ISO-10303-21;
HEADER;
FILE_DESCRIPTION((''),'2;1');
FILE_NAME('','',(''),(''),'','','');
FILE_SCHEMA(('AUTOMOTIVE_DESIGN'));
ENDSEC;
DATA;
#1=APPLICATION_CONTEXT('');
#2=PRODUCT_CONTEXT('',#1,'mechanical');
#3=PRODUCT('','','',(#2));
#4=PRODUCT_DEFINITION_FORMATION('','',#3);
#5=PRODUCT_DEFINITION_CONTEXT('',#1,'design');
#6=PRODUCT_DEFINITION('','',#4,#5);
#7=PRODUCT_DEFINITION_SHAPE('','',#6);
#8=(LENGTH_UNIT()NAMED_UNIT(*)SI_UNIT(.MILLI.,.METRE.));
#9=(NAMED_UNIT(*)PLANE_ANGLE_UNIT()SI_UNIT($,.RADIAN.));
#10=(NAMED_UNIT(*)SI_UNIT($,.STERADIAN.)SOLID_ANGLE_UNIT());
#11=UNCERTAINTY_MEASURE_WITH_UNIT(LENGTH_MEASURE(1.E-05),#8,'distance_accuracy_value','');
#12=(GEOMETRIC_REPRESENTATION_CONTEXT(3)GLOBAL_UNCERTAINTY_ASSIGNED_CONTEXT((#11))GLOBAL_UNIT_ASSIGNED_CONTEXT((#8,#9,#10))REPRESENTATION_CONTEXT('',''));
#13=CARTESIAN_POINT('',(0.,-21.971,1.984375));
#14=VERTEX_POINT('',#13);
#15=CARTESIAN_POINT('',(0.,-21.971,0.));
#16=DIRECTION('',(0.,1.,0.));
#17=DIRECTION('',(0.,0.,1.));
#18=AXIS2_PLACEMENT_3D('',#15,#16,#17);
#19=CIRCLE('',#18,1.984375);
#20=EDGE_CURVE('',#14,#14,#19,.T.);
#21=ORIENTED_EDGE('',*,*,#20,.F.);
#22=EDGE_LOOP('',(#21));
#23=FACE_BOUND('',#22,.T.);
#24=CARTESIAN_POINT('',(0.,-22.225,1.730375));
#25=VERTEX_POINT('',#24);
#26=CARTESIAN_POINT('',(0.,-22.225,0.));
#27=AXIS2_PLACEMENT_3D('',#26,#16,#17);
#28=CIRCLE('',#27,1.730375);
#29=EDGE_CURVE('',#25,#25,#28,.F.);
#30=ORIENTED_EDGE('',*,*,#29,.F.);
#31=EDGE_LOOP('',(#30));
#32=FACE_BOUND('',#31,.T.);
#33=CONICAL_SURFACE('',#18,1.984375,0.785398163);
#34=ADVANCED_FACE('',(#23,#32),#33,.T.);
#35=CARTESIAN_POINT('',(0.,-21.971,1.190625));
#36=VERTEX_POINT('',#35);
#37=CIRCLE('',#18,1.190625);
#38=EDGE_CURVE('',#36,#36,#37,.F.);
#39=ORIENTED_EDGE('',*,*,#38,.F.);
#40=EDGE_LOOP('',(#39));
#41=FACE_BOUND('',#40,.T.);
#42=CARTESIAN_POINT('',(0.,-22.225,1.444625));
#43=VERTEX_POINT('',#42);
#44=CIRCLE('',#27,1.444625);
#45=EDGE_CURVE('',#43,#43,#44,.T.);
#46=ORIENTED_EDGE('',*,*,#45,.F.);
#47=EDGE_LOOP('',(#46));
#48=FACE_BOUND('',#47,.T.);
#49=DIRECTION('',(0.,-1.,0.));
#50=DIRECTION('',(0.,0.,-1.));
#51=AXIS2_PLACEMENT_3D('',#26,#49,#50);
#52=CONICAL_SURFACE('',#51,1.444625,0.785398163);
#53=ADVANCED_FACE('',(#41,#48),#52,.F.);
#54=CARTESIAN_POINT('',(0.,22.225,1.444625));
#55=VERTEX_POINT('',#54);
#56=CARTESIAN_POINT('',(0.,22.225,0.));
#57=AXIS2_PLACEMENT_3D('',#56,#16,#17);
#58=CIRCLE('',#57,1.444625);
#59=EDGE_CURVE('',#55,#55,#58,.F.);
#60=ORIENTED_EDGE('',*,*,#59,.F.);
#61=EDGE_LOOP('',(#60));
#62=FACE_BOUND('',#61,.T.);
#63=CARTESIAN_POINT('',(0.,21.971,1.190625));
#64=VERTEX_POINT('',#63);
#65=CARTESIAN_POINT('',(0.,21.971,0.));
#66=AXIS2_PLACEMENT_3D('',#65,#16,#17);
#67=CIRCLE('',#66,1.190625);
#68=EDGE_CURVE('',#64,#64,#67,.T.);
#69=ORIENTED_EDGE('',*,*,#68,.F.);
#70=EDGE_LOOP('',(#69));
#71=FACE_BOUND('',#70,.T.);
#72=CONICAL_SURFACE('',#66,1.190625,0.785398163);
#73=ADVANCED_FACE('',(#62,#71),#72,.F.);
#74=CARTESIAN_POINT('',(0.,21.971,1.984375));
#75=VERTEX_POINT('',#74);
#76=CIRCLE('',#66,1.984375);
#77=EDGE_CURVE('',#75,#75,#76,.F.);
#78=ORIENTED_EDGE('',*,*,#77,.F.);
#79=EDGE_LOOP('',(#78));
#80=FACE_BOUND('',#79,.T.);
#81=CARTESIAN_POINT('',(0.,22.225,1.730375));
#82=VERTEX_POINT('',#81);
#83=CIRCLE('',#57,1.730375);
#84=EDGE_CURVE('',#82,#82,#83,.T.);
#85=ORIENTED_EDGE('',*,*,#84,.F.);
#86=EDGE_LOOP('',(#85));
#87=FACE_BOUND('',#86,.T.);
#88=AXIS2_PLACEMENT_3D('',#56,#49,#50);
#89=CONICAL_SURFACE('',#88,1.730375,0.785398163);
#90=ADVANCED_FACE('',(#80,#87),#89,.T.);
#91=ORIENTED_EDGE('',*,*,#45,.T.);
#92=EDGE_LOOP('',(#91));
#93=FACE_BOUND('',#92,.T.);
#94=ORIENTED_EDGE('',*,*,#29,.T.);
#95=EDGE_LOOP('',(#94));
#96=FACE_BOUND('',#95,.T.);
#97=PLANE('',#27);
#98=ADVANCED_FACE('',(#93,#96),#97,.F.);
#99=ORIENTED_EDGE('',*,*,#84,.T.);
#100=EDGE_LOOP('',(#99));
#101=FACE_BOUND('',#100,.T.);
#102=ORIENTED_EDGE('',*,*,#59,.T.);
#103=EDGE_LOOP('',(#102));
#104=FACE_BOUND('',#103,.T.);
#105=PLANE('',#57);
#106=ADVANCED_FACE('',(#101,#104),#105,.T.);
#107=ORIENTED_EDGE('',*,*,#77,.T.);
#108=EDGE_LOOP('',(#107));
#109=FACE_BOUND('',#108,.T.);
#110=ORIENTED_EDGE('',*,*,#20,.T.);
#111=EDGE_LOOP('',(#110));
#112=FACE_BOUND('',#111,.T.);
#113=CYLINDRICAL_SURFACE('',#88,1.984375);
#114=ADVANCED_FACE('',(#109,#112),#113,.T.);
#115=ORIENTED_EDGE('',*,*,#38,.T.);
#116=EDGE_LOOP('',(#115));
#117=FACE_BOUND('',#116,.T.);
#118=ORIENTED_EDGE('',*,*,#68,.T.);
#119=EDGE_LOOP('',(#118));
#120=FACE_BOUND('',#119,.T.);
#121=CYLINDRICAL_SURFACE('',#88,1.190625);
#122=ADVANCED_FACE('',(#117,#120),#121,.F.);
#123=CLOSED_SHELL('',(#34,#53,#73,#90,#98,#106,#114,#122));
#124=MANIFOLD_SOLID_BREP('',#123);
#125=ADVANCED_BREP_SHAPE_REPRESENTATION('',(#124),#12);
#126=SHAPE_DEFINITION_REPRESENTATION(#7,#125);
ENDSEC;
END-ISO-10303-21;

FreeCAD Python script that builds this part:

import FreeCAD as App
import Part
import Sketcher
from FreeCAD import Vector
Q = App.Units.Quantity


def edges_at(feature, points):
    """Names of the edges that pass closest to the given points."""
    edges = feature.Shape.Edges
    near = lambda p: min(range(len(edges)), key=lambda i: edges[i].distToShape(Part.Vertex(*p))[0])
    return sorted({f"Edge{near(p) + 1}" for p in points})

doc = App.newDocument("Part")
body = doc.addObject("PartDesign::Body", "Body")

# Sketch on XZ plane
sketch1 = body.newObject("Sketcher::SketchObject", "Sketch")
sketch1.AttachmentSupport = (doc.getObject("XZ_Plane"), [""])
sketch1.MapMode = "FlatFace"
sketch1.addGeometry(Part.Circle(Vector(0, 0, 0), Vector(0, 0, 1), 2), False)
sketch1.addGeometry(Part.Circle(Vector(0, 0, 0), Vector(0, 0, 1), 1.2), False)
sketch1.addConstraint(Sketcher.Constraint("Coincident", 0, 3, -1, 1))
sketch1.addConstraint(Sketcher.Constraint("Coincident", 1, 3, -1, 1))
sketch1.addConstraint(Sketcher.Constraint("Diameter", 0, Q("0.15625 in")))
sketch1.addConstraint(Sketcher.Constraint("Diameter", 1, Q("0.09375 in")))
pad1 = body.newObject("PartDesign::Pad", "Pad")
pad1.Profile = sketch1
pad1.Length = Q("1.75 in")
pad1.Midplane = True
doc.recompute()

chamfer = body.newObject("PartDesign::Chamfer", "Chamfer")
chamfer.Base = (pad1, edges_at(pad1, [
    (-1.984, -22.225, 0),
    (-1.984, 22.225, 0),
    (-1.191, -22.225, 0),
    (-1.191, 22.225, 0),
]))
chamfer.Size = Q("0.01 in")

doc.recompute()
